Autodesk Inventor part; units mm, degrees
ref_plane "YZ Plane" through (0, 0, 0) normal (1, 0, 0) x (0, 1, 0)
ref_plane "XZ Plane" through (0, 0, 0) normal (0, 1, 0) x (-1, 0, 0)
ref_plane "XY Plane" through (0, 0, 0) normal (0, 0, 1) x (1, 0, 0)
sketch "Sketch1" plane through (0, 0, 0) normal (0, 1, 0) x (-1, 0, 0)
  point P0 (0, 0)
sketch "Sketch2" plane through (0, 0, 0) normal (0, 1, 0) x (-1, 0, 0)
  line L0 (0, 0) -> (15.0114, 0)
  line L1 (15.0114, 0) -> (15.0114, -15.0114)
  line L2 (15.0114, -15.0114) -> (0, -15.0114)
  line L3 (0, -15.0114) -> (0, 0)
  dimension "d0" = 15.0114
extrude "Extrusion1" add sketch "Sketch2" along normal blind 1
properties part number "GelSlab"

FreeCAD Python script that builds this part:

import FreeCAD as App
import Part
import Sketcher

doc = App.newDocument("Part")
body = doc.addObject("PartDesign::Body", "Body")

sketch1 = doc.addObject("Sketcher::SketchObject", "Sketch")
body.addObject(sketch1)
sketch1.AttachmentSupport = (doc.XZ_Plane, [""])
sketch1.MapMode = "FlatFace"
sketch1.addGeometry(Part.LineSegment(App.Vector(-15.0114, 0, 0), App.Vector(0, 0, 0)), False)
sketch1.addGeometry(Part.LineSegment(App.Vector(0, 0, 0), App.Vector(0, -15.0114, 0)), False)
sketch1.addGeometry(Part.LineSegment(App.Vector(0, -15.0114, 0), App.Vector(-15.0114, -15.0114, 0)), False)
sketch1.addGeometry(Part.LineSegment(App.Vector(-15.0114, -15.0114, 0), App.Vector(-15.0114, 0, 0)), False)
sketch1.addConstraint(Sketcher.Constraint("Coincident", 0, 2, 1, 1))
sketch1.addConstraint(Sketcher.Constraint("Coincident", 1, 2, 2, 1))
sketch1.addConstraint(Sketcher.Constraint("Coincident", 2, 2, 3, 1))
sketch1.addConstraint(Sketcher.Constraint("Coincident", 3, 2, 0, 1))
sketch1.addConstraint(Sketcher.Constraint("Horizontal", 0))
sketch1.addConstraint(Sketcher.Constraint("Vertical", 1))
sketch1.addConstraint(Sketcher.Constraint("Horizontal", 2))
sketch1.addConstraint(Sketcher.Constraint("Vertical", 3))
sketch1.addConstraint(Sketcher.Constraint("Coincident", 0, 2, -1, 1))
sketch1.addConstraint(Sketcher.Constraint("Equal", 2, 1))
sketch1.addConstraint(Sketcher.Constraint("DistanceX", 0, 1, 0, 2, 15.0114))
pad1 = doc.addObject("PartDesign::Pad", "Pad")
body.addObject(pad1)
pad1.Profile = sketch1
pad1.Length = 1
pad1.Reversed = True

doc.recompute()
